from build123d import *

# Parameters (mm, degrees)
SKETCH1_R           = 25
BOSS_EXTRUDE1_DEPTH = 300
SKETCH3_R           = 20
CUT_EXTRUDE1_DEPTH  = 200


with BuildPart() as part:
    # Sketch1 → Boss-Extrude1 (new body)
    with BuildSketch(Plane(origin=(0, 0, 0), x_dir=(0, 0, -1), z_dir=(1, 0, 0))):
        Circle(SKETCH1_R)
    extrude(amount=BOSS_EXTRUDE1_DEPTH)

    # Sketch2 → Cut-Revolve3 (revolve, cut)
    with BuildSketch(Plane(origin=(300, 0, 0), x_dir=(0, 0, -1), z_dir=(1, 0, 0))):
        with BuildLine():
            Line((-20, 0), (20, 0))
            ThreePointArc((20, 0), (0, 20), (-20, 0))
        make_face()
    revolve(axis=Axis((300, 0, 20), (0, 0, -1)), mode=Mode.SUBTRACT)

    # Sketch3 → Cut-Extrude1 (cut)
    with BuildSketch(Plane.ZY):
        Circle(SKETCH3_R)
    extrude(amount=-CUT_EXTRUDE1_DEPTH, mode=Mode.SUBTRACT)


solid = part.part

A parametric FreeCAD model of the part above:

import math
import FreeCAD as App
import Part
import Sketcher

V = App.Vector

doc = App.newDocument("Part")
body = doc.addObject("PartDesign::Body", "Body")

# Sketch on YZ plane
sketch1 = body.newObject("Sketcher::SketchObject", "Sketch")
sketch1.AttachmentSupport = (doc.getObject("YZ_Plane"), [""])
sketch1.MapMode = "FlatFace"
sketch1.addGeometry(Part.Circle(V(0, 0, 0), V(0, 0, 1), 25), False)
sketch1.addConstraint(Sketcher.Constraint("Coincident", 0, 3, -1, 1))
sketch1.addConstraint(Sketcher.Constraint("Diameter", 0, 50.0))
pad1 = body.newObject("PartDesign::Pad", "Pad")
pad1.Profile = sketch1
pad1.Length = 300

# Sketch on YZ plane
sketch2 = body.newObject("Sketcher::SketchObject", "Sketch001")
sketch2.AttachmentSupport = (doc.getObject("YZ_Plane"), [""])
sketch2.MapMode = "FlatFace"
sketch2.AttachmentOffset = App.Placement(V(0, 0, 300), App.Rotation())
sketch2.addGeometry(Part.LineSegment(V(0, 20, 0), V(0, -20, 0)), False)
sketch2.addGeometry(Part.ArcOfCircle(Part.Circle(V(0, 0, 0), V(0, 0, 1), 20), math.radians(-90), math.radians(90)), False)
sketch2.addConstraint(Sketcher.Constraint("Coincident", 0, 1, 1, 2))
sketch2.addConstraint(Sketcher.Constraint("Coincident", 1, 1, 0, 2))
sketch2.addConstraint(Sketcher.Constraint("Vertical", 0))
sketch2.addConstraint(Sketcher.Constraint("Coincident", 1, 3, -1, 1))
sketch2.addConstraint(Sketcher.Constraint("PointOnObject", 0, 1, -2))
sketch2.addConstraint(Sketcher.Constraint("Radius", 1, 20.0))
groove = body.newObject("PartDesign::Groove", "Groove")
groove.Profile = sketch2
groove.ReferenceAxis = (sketch2, ["V_Axis"])
groove.Angle = 360

# Sketch on YZ plane
sketch3 = body.newObject("Sketcher::SketchObject", "Sketch002")
sketch3.AttachmentSupport = (doc.getObject("YZ_Plane"), [""])
sketch3.MapMode = "FlatFace"
sketch3.addGeometry(Part.Circle(V(0, 0, 0), V(0, 0, 1), 20), False)
sketch3.addConstraint(Sketcher.Constraint("Coincident", 0, 3, -1, 1))
sketch3.addConstraint(Sketcher.Constraint("Diameter", 0, 40.0))
pocket1 = body.newObject("PartDesign::Pocket", "Pocket")
pocket1.Profile = sketch3
pocket1.Length = 200
pocket1.Reversed = True

doc.recompute()
